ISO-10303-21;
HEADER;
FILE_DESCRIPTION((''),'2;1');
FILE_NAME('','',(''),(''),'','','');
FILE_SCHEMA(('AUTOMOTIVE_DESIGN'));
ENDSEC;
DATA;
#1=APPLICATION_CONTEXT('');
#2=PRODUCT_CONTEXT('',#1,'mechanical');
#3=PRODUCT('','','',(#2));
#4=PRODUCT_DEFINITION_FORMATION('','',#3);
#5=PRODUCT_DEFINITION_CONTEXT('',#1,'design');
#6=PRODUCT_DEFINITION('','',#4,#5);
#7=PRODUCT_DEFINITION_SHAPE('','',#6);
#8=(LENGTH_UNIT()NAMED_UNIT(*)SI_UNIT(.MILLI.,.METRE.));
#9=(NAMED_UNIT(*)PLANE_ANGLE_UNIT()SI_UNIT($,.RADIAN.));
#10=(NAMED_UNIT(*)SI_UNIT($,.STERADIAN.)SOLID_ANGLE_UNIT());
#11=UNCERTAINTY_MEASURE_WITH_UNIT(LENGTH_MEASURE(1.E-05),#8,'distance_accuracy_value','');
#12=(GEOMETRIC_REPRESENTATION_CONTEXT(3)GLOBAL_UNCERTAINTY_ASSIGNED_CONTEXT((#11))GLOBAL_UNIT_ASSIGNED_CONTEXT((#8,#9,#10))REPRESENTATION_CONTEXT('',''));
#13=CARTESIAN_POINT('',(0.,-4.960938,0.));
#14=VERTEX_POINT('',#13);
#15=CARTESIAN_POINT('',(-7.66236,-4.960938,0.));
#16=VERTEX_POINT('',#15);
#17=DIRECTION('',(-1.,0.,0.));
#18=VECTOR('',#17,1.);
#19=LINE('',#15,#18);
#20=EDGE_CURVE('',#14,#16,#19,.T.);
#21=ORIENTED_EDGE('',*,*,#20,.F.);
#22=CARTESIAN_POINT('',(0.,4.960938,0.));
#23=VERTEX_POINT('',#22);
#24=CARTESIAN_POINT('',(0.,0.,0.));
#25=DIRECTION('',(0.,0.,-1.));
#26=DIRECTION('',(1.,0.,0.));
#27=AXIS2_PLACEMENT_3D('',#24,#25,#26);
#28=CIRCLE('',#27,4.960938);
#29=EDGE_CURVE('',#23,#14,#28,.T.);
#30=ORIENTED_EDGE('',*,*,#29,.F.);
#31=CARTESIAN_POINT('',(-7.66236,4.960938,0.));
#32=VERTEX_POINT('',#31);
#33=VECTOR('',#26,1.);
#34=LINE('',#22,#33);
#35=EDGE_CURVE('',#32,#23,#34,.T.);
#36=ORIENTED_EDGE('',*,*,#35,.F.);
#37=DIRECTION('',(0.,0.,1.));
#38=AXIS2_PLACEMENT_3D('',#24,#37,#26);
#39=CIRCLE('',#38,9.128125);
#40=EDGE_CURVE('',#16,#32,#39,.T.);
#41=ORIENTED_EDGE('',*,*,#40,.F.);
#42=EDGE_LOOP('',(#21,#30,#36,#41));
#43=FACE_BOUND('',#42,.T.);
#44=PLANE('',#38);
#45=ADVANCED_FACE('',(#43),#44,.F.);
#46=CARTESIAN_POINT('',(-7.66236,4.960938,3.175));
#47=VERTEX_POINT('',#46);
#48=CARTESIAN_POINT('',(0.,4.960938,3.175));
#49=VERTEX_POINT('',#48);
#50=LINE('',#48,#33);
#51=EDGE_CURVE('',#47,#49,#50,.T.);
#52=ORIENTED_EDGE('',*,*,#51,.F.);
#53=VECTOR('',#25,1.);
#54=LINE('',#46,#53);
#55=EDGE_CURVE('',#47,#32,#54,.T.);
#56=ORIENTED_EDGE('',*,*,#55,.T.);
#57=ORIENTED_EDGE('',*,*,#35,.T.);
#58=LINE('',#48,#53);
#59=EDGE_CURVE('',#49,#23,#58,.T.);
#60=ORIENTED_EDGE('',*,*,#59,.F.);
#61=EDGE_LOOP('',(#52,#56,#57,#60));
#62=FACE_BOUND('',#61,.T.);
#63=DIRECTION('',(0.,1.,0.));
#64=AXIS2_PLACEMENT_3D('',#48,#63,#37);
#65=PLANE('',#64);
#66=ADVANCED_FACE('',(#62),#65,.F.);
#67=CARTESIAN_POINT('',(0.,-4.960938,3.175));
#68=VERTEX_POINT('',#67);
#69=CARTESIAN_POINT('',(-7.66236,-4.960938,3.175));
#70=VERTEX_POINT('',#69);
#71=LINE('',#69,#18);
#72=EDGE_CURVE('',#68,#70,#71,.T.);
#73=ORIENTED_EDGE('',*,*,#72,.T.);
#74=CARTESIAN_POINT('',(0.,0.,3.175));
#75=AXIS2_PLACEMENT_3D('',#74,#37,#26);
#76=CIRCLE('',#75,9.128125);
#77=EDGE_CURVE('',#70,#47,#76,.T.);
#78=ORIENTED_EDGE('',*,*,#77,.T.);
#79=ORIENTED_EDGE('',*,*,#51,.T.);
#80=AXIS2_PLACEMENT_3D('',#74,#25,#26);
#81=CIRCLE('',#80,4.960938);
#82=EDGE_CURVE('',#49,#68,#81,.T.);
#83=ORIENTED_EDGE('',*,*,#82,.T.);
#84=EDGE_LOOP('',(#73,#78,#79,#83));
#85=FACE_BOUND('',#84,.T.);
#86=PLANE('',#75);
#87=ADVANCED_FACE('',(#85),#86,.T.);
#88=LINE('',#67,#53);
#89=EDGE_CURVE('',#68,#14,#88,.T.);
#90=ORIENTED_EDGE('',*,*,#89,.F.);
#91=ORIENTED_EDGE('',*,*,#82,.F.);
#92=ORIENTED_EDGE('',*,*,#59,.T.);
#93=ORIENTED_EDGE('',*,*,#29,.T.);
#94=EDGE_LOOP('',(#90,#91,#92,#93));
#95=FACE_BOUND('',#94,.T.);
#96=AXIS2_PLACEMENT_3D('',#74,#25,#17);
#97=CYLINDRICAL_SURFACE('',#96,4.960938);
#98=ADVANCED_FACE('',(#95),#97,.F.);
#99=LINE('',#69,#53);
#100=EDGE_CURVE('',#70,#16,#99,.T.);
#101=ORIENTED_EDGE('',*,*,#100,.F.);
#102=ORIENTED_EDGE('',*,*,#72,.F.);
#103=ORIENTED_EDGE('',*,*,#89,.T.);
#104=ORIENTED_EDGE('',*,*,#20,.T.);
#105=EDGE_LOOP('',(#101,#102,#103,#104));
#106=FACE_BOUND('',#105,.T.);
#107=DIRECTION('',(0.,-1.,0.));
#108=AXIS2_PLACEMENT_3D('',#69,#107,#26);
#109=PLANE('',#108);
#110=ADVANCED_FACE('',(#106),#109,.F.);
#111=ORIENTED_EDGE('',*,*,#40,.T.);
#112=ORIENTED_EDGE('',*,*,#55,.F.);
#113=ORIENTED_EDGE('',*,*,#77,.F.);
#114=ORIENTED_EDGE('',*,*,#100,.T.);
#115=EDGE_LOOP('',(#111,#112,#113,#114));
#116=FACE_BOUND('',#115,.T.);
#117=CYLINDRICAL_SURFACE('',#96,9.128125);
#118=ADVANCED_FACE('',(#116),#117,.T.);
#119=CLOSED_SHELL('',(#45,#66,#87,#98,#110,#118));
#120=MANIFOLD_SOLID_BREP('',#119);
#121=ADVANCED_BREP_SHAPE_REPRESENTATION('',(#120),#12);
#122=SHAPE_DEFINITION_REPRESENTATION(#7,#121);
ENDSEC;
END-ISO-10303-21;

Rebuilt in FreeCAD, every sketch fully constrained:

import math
import FreeCAD as App
import Part
import Sketcher

V = App.Vector
Q = App.Units.Quantity

doc = App.newDocument("Part")
params = doc.addObject("Spreadsheet::Sheet", "Params")
for row, (alias, value) in enumerate([
    ("sketch1_radius", "0.359375 in"),
    ("pad1_length", "0.125 in"),
], start=1):
    params.set(f"A{row}", alias)
    params.set(f"B{row}", "=" + value)
    params.setAlias(f"B{row}", alias)

body = doc.addObject("PartDesign::Body", "Body")

# Sketch on XY plane
sketch1 = doc.addObject("Sketcher::SketchObject", "Sketch")
body.addObject(sketch1)
sketch1.AttachmentSupport = (doc.XY_Plane, [""])
sketch1.MapMode = "FlatFace"
sketch1.addGeometry(Part.LineSegment(V(0, -5, 0), V(-7.7, -5, 0)), False)
sketch1.addGeometry(Part.ArcOfCircle(Part.Circle(V(0, 0, 0), V(0, 0, 1), 9.1), math.radians(-147), math.radians(147)), False)
sketch1.addGeometry(Part.LineSegment(V(-7.7, 5, 0), V(0, 5, 0)), False)
sketch1.addGeometry(Part.ArcOfCircle(Part.Circle(V(0, 0, 0), V(0, 0, 1), 5), math.radians(-90), math.radians(90)), False)
sketch1.addConstraint(Sketcher.Constraint("Coincident", 0, 2, 1, 1))
sketch1.addConstraint(Sketcher.Constraint("Coincident", 1, 2, 2, 1))
sketch1.addConstraint(Sketcher.Constraint("Tangent", 2, 2, 3, 2))
sketch1.addConstraint(Sketcher.Constraint("Tangent", 3, 1, 0, 1))
sketch1.addConstraint(Sketcher.Constraint("Horizontal", 0))
sketch1.addConstraint(Sketcher.Constraint("Horizontal", 2))
sketch1.addConstraint(Sketcher.Constraint("Coincident", 1, 3, -1, 1))
sketch1.addConstraint(Sketcher.Constraint("Coincident", 3, 3, -1, 1))
sketch1.addConstraint(Sketcher.Constraint("Radius", 1, Q("0.359375 in")))
sketch1.addConstraint(Sketcher.Constraint("DistanceY", 0, 2, 1, 2, Q("0.390625 in")))
sketch1.setExpression("Constraints[8]", "Params.sketch1_radius")
pad1 = doc.addObject("PartDesign::Pad", "Pad")
body.addObject(pad1)
pad1.Profile = sketch1
pad1.setExpression("Length", "Params.pad1_length")

doc.recompute()
